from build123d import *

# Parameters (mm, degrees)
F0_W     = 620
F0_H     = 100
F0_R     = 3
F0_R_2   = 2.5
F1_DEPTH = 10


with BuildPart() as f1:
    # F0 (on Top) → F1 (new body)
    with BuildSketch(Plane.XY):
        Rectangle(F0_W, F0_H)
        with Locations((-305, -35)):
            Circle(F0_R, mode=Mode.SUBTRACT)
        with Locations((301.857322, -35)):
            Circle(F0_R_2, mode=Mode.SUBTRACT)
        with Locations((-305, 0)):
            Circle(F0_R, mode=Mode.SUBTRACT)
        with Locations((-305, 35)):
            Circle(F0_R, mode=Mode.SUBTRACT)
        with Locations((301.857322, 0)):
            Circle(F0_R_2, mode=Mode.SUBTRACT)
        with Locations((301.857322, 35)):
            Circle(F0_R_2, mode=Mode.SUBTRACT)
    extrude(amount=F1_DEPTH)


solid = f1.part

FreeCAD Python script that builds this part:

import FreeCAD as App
import Part
import Sketcher

doc = App.newDocument("Part")
params = doc.addObject("Spreadsheet::Sheet", "Params")
for row, (alias, value) in enumerate([
    ("sketch1_diameter", "6 mm"),
    ("sketch1_diameter2", "5 mm"),
    ("sketch1_width", "620 mm"),
    ("sketch1_height", "100 mm"),
    ("pad1_length", "10 mm"),
], start=1):
    params.set(f"A{row}", alias)
    params.set(f"B{row}", "=" + value)
    params.setAlias(f"B{row}", alias)

body = doc.addObject("PartDesign::Body", "Body")

sketch1 = body.newObject("Sketcher::SketchObject", "Sketch")
sketch1.AttachmentSupport = (doc.getObject("XY_Plane"), [""])
sketch1.MapMode = "FlatFace"
sketch1.addGeometry([
    Part.LineSegment(App.Vector(-310, 50, 0), App.Vector(-310, -50, 0)),
    Part.LineSegment(App.Vector(-310, -50, 0), App.Vector(310, -50, 0)),
    Part.LineSegment(App.Vector(310, -50, 0), App.Vector(310, 50, 0)),
    Part.LineSegment(App.Vector(310, 50, 0), App.Vector(-310, 50, 0)),
    Part.Circle(App.Vector(-305, -35, 0), App.Vector(0, 0, 1), 3),
    Part.Circle(App.Vector(301.9, -35, 0), App.Vector(0, 0, 1), 2.5),
    Part.Circle(App.Vector(-305, 0, 0), App.Vector(0, 0, 1), 3),
    Part.Circle(App.Vector(-305, 35, 0), App.Vector(0, 0, 1), 3),
    Part.Circle(App.Vector(301.9, 0, 0), App.Vector(0, 0, 1), 2.5),
    Part.Circle(App.Vector(301.9, 35, 0), App.Vector(0, 0, 1), 2.5),
], False)
sketch1.addConstraint([
    Sketcher.Constraint("Coincident", 0, 2, 1, 1),
    Sketcher.Constraint("Coincident", 1, 2, 2, 1),
    Sketcher.Constraint("Coincident", 2, 2, 3, 1),
    Sketcher.Constraint("Coincident", 3, 2, 0, 1),
    Sketcher.Constraint("Vertical", 0),
    Sketcher.Constraint("Horizontal", 1),
    Sketcher.Constraint("Vertical", 2),
    Sketcher.Constraint("Horizontal", 3),
    Sketcher.Constraint("Equal", 4, 6),
    Sketcher.Constraint("Equal", 6, 7),
    Sketcher.Constraint("Equal", 5, 8),
    Sketcher.Constraint("Equal", 8, 9),
    Sketcher.Constraint("Symmetric", 0, 2, 2, 2, -1, 1),
    Sketcher.Constraint("Symmetric", 4, 3, 7, 3, -1),
    Sketcher.Constraint("Symmetric", 5, 3, 9, 3, -1),
    Sketcher.Constraint("PointOnObject", 6, 3, -1),
    Sketcher.Constraint("PointOnObject", 8, 3, -1),
    Sketcher.Constraint("Horizontal", 4, 3, 5, 3),
    Sketcher.Constraint("Vertical", 4, 3, 6, 3),
    Sketcher.Constraint("Vertical", 5, 3, 8, 3),
    Sketcher.Constraint("Diameter", 4, 6.0),
    Sketcher.Constraint("Diameter", 5, 5.0),
    Sketcher.Constraint("DistanceX", 1, 1, 1, 2, 620.0),
    Sketcher.Constraint("DistanceY", 0, 2, 0, 1, 100.0),
    Sketcher.Constraint("DistanceX", 4, 3, -1, 1, 305.0),
    Sketcher.Constraint("DistanceY", 4, 3, -1, 1, 35.0),
    Sketcher.Constraint("DistanceX", -1, 1, 5, 3, 301.857322),
])
sketch1.setExpression("Constraints[20]", "Params.sketch1_diameter")
sketch1.setExpression("Constraints[21]", "Params.sketch1_diameter2")
sketch1.setExpression("Constraints[22]", "Params.sketch1_width")
sketch1.setExpression("Constraints[23]", "Params.sketch1_height")
pad1 = body.newObject("PartDesign::Pad", "Pad")
pad1.Profile = sketch1
pad1.setExpression("Length", "Params.pad1_length")

doc.recompute()
